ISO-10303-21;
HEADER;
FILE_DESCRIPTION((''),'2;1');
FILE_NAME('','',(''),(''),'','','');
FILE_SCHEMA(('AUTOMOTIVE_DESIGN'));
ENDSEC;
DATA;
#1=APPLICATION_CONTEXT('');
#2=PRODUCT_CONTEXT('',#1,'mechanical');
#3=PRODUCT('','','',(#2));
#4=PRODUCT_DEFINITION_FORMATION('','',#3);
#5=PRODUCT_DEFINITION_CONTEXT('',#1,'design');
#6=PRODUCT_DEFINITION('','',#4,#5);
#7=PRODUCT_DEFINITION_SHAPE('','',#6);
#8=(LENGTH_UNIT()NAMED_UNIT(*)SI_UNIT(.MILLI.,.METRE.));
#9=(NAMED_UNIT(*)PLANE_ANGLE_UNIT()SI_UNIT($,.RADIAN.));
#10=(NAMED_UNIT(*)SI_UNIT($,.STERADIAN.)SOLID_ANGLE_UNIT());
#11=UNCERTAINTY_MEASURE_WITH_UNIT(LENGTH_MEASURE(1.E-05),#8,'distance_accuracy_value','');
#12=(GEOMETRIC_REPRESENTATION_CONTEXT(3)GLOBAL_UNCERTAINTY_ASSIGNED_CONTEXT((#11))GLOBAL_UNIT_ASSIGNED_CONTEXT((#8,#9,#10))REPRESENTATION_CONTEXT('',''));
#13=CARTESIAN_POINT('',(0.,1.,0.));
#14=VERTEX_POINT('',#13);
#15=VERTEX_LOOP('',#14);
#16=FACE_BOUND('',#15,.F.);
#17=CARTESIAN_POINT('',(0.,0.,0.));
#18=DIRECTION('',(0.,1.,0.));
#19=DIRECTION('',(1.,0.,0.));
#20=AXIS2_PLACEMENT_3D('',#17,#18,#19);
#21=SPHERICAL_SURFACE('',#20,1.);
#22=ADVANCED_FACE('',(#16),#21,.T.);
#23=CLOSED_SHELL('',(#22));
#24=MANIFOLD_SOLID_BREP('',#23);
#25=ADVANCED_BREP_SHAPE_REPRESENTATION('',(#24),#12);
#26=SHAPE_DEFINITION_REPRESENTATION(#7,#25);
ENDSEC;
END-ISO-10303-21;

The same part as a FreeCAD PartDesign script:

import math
import FreeCAD as App
import Part
import Sketcher
from FreeCAD import Vector

doc = App.newDocument("Part")
params = doc.addObject("Spreadsheet::Sheet", "Params")
for row, (alias, value) in enumerate([
    ("sketch1_radius", "1 mm"),
    ("revolution_angle", "360 deg"),
], start=1):
    params.set(f"A{row}", alias)
    params.set(f"B{row}", "=" + value)
    params.setAlias(f"B{row}", alias)

body = doc.addObject("PartDesign::Body", "Body")

sketch1 = body.newObject("Sketcher::SketchObject", "Sketch")
sketch1.AttachmentSupport = (doc.getObject("XY_Plane"), [""])
sketch1.MapMode = "FlatFace"
sketch1.addGeometry([
    Part.LineSegment(Vector(0, 1, 0), Vector(0, -1, 0)),
    Part.ArcOfCircle(Part.Circle(Vector(0, 0, 0), Vector(0, 0, 1), 1), math.radians(-90), math.radians(90)),
], False)
sketch1.addConstraint([
    Sketcher.Constraint("Coincident", 0, 1, 1, 2),
    Sketcher.Constraint("Coincident", 1, 1, 0, 2),
    Sketcher.Constraint("Vertical", 0),
    Sketcher.Constraint("Coincident", 1, 3, -1, 1),
    Sketcher.Constraint("PointOnObject", 0, 1, -2),
    Sketcher.Constraint("Radius", 1, 1.0),
])
sketch1.setExpression("Constraints[5]", "Params.sketch1_radius")
revolution = body.newObject("PartDesign::Revolution", "Revolution")
revolution.Profile = sketch1
revolution.ReferenceAxis = (sketch1, ["V_Axis"])
revolution.setExpression("Angle", "Params.revolution_angle")

doc.recompute()
